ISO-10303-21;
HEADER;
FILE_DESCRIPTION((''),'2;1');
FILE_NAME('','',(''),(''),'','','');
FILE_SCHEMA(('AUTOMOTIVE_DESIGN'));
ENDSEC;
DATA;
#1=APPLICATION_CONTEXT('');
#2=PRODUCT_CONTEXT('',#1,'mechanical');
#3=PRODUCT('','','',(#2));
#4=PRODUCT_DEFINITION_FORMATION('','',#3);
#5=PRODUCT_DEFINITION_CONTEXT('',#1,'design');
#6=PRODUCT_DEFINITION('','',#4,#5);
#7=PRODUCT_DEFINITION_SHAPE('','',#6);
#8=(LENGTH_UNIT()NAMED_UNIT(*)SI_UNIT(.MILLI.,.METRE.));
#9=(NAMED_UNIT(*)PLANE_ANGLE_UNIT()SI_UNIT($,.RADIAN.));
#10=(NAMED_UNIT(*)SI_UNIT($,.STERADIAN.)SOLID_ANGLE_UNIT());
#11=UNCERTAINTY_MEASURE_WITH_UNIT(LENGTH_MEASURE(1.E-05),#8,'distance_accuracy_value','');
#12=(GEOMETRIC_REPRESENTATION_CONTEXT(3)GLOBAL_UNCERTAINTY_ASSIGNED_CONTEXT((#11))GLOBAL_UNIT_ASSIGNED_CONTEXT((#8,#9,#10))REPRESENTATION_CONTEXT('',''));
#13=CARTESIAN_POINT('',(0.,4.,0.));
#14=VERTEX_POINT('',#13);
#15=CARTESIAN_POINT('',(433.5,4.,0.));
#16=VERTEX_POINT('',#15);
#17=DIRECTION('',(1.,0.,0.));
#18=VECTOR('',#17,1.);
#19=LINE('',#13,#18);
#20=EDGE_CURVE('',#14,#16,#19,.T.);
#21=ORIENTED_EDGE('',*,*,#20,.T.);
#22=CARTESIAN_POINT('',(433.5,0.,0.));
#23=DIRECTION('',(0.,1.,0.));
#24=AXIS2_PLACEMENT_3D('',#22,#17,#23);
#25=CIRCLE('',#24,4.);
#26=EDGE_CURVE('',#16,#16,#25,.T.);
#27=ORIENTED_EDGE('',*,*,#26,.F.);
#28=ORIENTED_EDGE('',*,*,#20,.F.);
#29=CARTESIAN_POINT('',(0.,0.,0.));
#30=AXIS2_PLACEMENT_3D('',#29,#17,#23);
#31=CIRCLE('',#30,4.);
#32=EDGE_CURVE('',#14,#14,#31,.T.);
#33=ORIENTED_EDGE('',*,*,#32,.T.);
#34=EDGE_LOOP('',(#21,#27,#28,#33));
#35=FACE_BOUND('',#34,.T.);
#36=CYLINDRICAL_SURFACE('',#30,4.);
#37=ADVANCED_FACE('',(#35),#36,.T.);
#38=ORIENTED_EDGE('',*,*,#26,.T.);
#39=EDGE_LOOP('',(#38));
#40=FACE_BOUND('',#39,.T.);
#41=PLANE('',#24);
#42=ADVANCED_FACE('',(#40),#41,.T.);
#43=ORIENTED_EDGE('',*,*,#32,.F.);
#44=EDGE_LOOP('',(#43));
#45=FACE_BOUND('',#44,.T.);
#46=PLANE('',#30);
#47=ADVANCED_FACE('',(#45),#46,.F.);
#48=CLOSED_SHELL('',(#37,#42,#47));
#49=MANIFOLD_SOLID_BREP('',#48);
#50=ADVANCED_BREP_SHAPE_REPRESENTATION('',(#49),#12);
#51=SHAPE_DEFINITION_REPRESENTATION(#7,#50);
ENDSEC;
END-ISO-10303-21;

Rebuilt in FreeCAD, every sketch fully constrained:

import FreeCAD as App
import Part
import Sketcher


def add_polygon(sketch, points):
    """Adds a closed chain of lines whose ends are joined by coincident constraints."""
    first, n = sketch.GeometryCount, len(points)
    for a, b in zip(points, points[1:] + points[:1]):
        sketch.addGeometry(Part.LineSegment(App.Vector(*a, 0), App.Vector(*b, 0)), False)
    for i in range(n):
        sketch.addConstraint(Sketcher.Constraint("Coincident", first + i, 2, first + (i + 1) % n, 1))

doc = App.newDocument("Part")
body = doc.addObject("PartDesign::Body", "Body")

sketch1 = body.newObject("Sketcher::SketchObject", "Sketch")
sketch1.AttachmentSupport = (doc.getObject("XY_Plane"), [""])
sketch1.MapMode = "FlatFace"
add_polygon(sketch1, [(0, 4), (0, 0), (433.5, 0), (433.5, 4)])
sketch1.addConstraint(Sketcher.Constraint("Vertical", 0))
sketch1.addConstraint(Sketcher.Constraint("Horizontal", 1))
sketch1.addConstraint(Sketcher.Constraint("Vertical", 2))
sketch1.addConstraint(Sketcher.Constraint("Horizontal", 3))
sketch1.addConstraint(Sketcher.Constraint("Coincident", 0, 2, -1, 1))
sketch1.addConstraint(Sketcher.Constraint("DistanceY", 0, 2, 0, 1, 4.0))
sketch1.addConstraint(Sketcher.Constraint("DistanceX", 1, 1, 1, 2, 433.5))
revolution = body.newObject("PartDesign::Revolution", "Revolution")
revolution.Profile = sketch1
revolution.ReferenceAxis = (sketch1, ["H_Axis"])
revolution.Angle = 360

doc.recompute()
